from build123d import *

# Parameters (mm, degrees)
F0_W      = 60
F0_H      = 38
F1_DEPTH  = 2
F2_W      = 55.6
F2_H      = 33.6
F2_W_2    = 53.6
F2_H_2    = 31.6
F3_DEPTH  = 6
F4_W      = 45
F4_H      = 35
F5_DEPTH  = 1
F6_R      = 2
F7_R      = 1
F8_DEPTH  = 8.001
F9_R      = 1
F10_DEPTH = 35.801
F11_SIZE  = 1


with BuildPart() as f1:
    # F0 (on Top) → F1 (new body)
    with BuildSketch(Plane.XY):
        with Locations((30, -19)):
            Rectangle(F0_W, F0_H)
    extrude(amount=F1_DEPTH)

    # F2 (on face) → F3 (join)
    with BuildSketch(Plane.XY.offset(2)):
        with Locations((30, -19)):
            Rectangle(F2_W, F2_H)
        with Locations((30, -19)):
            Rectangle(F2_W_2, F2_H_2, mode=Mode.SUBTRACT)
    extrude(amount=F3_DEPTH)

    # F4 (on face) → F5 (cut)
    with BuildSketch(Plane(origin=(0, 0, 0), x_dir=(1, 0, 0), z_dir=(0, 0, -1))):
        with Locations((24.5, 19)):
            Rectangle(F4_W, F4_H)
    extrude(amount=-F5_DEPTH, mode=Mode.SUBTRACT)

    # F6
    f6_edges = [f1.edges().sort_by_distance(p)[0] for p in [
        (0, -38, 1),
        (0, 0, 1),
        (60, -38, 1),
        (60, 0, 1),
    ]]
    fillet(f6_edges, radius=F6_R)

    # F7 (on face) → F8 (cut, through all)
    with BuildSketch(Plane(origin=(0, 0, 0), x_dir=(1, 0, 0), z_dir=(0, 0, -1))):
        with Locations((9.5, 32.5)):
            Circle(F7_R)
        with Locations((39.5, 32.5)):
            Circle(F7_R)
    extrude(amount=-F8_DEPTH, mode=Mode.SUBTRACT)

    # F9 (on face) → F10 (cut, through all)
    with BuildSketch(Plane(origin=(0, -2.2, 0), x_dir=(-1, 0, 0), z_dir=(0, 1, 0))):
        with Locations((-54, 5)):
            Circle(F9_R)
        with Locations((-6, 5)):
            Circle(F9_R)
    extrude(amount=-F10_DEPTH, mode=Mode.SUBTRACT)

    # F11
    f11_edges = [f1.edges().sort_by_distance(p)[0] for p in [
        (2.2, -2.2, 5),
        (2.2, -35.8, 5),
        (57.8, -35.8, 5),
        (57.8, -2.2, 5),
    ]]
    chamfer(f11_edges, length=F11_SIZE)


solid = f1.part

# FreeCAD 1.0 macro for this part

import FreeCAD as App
import Part
import Sketcher
from FreeCAD import Vector
Q = App.Units.Quantity


def edges_at(feature, points):
    """Names of the edges that pass closest to the given points."""
    edges = feature.Shape.Edges
    near = lambda p: min(range(len(edges)), key=lambda i: edges[i].distToShape(Part.Vertex(*p))[0])
    return sorted({f"Edge{near(p) + 1}" for p in points})

doc = App.newDocument("Part")
body = doc.addObject("PartDesign::Body", "Body")

# Sketch on XY plane
sketch1 = body.newObject("Sketcher::SketchObject", "Sketch")
sketch1.AttachmentSupport = (doc.getObject("XY_Plane"), [""])
sketch1.MapMode = "FlatFace"
sketch1.addGeometry([
    Part.LineSegment(Vector(0, 0, 0), Vector(0, -38, 0)),
    Part.LineSegment(Vector(0, -38, 0), Vector(60, -38, 0)),
    Part.LineSegment(Vector(60, -38, 0), Vector(60, 0, 0)),
    Part.LineSegment(Vector(60, 0, 0), Vector(0, 0, 0)),
], False)
sketch1.addConstraint([
    Sketcher.Constraint("Coincident", 0, 2, 1, 1),
    Sketcher.Constraint("Coincident", 1, 2, 2, 1),
    Sketcher.Constraint("Coincident", 2, 2, 3, 1),
    Sketcher.Constraint("Coincident", 3, 2, 0, 1),
    Sketcher.Constraint("Vertical", 0),
    Sketcher.Constraint("Horizontal", 1),
    Sketcher.Constraint("Vertical", 2),
    Sketcher.Constraint("Horizontal", 3),
    Sketcher.Constraint("Coincident", 3, 2, -1, 1),
    Sketcher.Constraint("DistanceX", 1, 1, 1, 2, Q("60 mm")),
    Sketcher.Constraint("DistanceY", 0, 2, 0, 1, Q("38 mm")),
])
pad1 = body.newObject("PartDesign::Pad", "Pad")
pad1.Profile = sketch1
pad1.Length = 2

# Sketch on XY plane
sketch2 = body.newObject("Sketcher::SketchObject", "Sketch001")
sketch2.AttachmentSupport = (doc.getObject("XY_Plane"), [""])
sketch2.MapMode = "FlatFace"
sketch2.AttachmentOffset = App.Placement(Vector(0, 0, 2), App.Rotation())
sketch2.addGeometry([
    Part.LineSegment(Vector(2, -2, 0), Vector(2, -36, 0)),  # 0
    Part.LineSegment(Vector(2, -36, 0), Vector(58, -36, 0)),  # 1
    Part.LineSegment(Vector(58, -36, 0), Vector(58, -2, 0)),  # 2
    Part.LineSegment(Vector(58, -2, 0), Vector(2, -2, 0)),  # 3
    Part.LineSegment(Vector(57, -35, 0), Vector(3, -35, 0)),  # 4
    Part.LineSegment(Vector(3, -35, 0), Vector(3, -3, 0)),  # 5
    Part.LineSegment(Vector(3, -3, 0), Vector(57, -3, 0)),  # 6
    Part.LineSegment(Vector(57, -3, 0), Vector(57, -35, 0)),  # 7
], False)
sketch2.addConstraint([
    Sketcher.Constraint("Coincident", 0, 2, 1, 1),
    Sketcher.Constraint("Coincident", 1, 2, 2, 1),
    Sketcher.Constraint("Coincident", 2, 2, 3, 1),
    Sketcher.Constraint("Coincident", 3, 2, 0, 1),
    Sketcher.Constraint("Coincident", 4, 2, 5, 1),
    Sketcher.Constraint("Coincident", 5, 2, 6, 1),
    Sketcher.Constraint("Coincident", 6, 2, 7, 1),
    Sketcher.Constraint("Coincident", 7, 2, 4, 1),
    Sketcher.Constraint("Vertical", 0),
    Sketcher.Constraint("Horizontal", 1),
    Sketcher.Constraint("Vertical", 2),
    Sketcher.Constraint("Horizontal", 3),
    Sketcher.Constraint("Horizontal", 4),
    Sketcher.Constraint("Vertical", 5),
    Sketcher.Constraint("Horizontal", 6),
    Sketcher.Constraint("Vertical", 7),
    Sketcher.Constraint("DistanceX", 1, 1, 1, 2, Q("55.6 mm")),
    Sketcher.Constraint("DistanceX", 4, 2, 4, 1, Q("53.6 mm")),
    Sketcher.Constraint("DistanceY", 0, 2, 0, 1, Q("33.6 mm")),
    Sketcher.Constraint("DistanceY", 5, 1, 5, 2, Q("31.6 mm")),
    Sketcher.Constraint("DistanceX", 0, 2, 4, 2, Q("1 mm")),
    Sketcher.Constraint("DistanceY", 0, 2, 4, 2, Q("1 mm")),
    Sketcher.Constraint("DistanceX", -1, 1, 0, 2, Q("2.2 mm")),
    Sketcher.Constraint("DistanceY", 0, 2, -1, 1, Q("35.8 mm")),
])
pad2 = body.newObject("PartDesign::Pad", "Pad001")
pad2.Profile = sketch2
pad2.Length = 6

# Sketch on XY plane
sketch3 = body.newObject("Sketcher::SketchObject", "Sketch002")
sketch3.AttachmentSupport = (doc.getObject("XY_Plane"), [""])
sketch3.MapMode = "FlatFace"
sketch3.addGeometry([
    Part.LineSegment(Vector(2, -36, 0), Vector(2, -2, 0)),
    Part.LineSegment(Vector(2, -2, 0), Vector(47, -2, 0)),
    Part.LineSegment(Vector(47, -2, 0), Vector(47, -36, 0)),
    Part.LineSegment(Vector(47, -36, 0), Vector(2, -36, 0)),
], False)
sketch3.addConstraint([
    Sketcher.Constraint("Coincident", 0, 2, 1, 1),
    Sketcher.Constraint("Coincident", 1, 2, 2, 1),
    Sketcher.Constraint("Coincident", 2, 2, 3, 1),
    Sketcher.Constraint("Coincident", 3, 2, 0, 1),
    Sketcher.Constraint("Vertical", 0),
    Sketcher.Constraint("Horizontal", 1),
    Sketcher.Constraint("Vertical", 2),
    Sketcher.Constraint("Horizontal", 3),
    Sketcher.Constraint("DistanceX", 1, 1, 1, 2, Q("45 mm")),
    Sketcher.Constraint("DistanceY", 0, 1, 0, 2, Q("35 mm")),
    Sketcher.Constraint("DistanceX", -1, 1, 0, 2, Q("2 mm")),
    Sketcher.Constraint("DistanceY", 0, 2, -1, 1, Q("1.5 mm")),
])
pocket1 = body.newObject("PartDesign::Pocket", "Pocket")
pocket1.Profile = sketch3
pocket1.Length = 1
pocket1.Reversed = True
doc.recompute()

fillet = body.newObject("PartDesign::Fillet", "Fillet")
fillet.Base = (pocket1, edges_at(pocket1, [
    (0, -38, 1),
    (0, 0, 1),
    (60, -38, 1),
    (60, 0, 1),
]))
fillet.Radius = 2

# Sketch on XY plane
sketch4 = body.newObject("Sketcher::SketchObject", "Sketch003")
sketch4.AttachmentSupport = (doc.getObject("XY_Plane"), [""])
sketch4.MapMode = "FlatFace"
sketch4.addGeometry([
    Part.Circle(Vector(9.5, -32.5, 0), Vector(0, 0, 1), 1),
    Part.Circle(Vector(39.5, -32.5, 0), Vector(0, 0, 1), 1),
], False)
sketch4.addConstraint([
    Sketcher.Constraint("Equal", 0, 1),
    Sketcher.Constraint("Horizontal", 0, 3, 1, 3),
    Sketcher.Constraint("Diameter", 0, Q("2 mm")),
    Sketcher.Constraint("DistanceX", 0, 3, 1, 3, Q("30 mm")),
    Sketcher.Constraint("DistanceX", -1, 1, 0, 3, Q("9.5 mm")),
    Sketcher.Constraint("DistanceY", 0, 3, -1, 1, Q("32.5 mm")),
])
pocket2 = body.newObject("PartDesign::Pocket", "Pocket001")
pocket2.Profile = sketch4
pocket2.Type = "ThroughAll"
pocket2.Reversed = True

# Sketch on XZ plane
sketch5 = body.newObject("Sketcher::SketchObject", "Sketch004")
sketch5.AttachmentSupport = (doc.getObject("XZ_Plane"), [""])
sketch5.MapMode = "FlatFace"
sketch5.AttachmentOffset = App.Placement(Vector(0, 0, 2.2), App.Rotation())
sketch5.addGeometry([
    Part.Circle(Vector(54, 5, 0), Vector(0, 0, 1), 1),
    Part.Circle(Vector(6, 5, 0), Vector(0, 0, 1), 1),
], False)
sketch5.addConstraint([
    Sketcher.Constraint("Equal", 0, 1),
    Sketcher.Constraint("Horizontal", 0, 3, 1, 3),
    Sketcher.Constraint("Diameter", 0, Q("2 mm")),
    Sketcher.Constraint("DistanceX", -1, 1, 0, 3, Q("54 mm")),
    Sketcher.Constraint("DistanceY", -1, 1, 0, 3, Q("5 mm")),
    Sketcher.Constraint("DistanceX", -1, 1, 1, 3, Q("6 mm")),
])
pocket3 = body.newObject("PartDesign::Pocket", "Pocket002")
pocket3.Profile = sketch5
pocket3.Type = "ThroughAll"
pocket3.Reversed = True
doc.recompute()

chamfer = body.newObject("PartDesign::Chamfer", "Chamfer")
chamfer.Base = (pocket3, edges_at(pocket3, [
    (2.2, -2.2, 5),
    (2.2, -35.8, 5),
    (57.8, -35.8, 5),
    (57.8, -2.2, 5),
]))
chamfer.Size = 1

doc.recompute()
